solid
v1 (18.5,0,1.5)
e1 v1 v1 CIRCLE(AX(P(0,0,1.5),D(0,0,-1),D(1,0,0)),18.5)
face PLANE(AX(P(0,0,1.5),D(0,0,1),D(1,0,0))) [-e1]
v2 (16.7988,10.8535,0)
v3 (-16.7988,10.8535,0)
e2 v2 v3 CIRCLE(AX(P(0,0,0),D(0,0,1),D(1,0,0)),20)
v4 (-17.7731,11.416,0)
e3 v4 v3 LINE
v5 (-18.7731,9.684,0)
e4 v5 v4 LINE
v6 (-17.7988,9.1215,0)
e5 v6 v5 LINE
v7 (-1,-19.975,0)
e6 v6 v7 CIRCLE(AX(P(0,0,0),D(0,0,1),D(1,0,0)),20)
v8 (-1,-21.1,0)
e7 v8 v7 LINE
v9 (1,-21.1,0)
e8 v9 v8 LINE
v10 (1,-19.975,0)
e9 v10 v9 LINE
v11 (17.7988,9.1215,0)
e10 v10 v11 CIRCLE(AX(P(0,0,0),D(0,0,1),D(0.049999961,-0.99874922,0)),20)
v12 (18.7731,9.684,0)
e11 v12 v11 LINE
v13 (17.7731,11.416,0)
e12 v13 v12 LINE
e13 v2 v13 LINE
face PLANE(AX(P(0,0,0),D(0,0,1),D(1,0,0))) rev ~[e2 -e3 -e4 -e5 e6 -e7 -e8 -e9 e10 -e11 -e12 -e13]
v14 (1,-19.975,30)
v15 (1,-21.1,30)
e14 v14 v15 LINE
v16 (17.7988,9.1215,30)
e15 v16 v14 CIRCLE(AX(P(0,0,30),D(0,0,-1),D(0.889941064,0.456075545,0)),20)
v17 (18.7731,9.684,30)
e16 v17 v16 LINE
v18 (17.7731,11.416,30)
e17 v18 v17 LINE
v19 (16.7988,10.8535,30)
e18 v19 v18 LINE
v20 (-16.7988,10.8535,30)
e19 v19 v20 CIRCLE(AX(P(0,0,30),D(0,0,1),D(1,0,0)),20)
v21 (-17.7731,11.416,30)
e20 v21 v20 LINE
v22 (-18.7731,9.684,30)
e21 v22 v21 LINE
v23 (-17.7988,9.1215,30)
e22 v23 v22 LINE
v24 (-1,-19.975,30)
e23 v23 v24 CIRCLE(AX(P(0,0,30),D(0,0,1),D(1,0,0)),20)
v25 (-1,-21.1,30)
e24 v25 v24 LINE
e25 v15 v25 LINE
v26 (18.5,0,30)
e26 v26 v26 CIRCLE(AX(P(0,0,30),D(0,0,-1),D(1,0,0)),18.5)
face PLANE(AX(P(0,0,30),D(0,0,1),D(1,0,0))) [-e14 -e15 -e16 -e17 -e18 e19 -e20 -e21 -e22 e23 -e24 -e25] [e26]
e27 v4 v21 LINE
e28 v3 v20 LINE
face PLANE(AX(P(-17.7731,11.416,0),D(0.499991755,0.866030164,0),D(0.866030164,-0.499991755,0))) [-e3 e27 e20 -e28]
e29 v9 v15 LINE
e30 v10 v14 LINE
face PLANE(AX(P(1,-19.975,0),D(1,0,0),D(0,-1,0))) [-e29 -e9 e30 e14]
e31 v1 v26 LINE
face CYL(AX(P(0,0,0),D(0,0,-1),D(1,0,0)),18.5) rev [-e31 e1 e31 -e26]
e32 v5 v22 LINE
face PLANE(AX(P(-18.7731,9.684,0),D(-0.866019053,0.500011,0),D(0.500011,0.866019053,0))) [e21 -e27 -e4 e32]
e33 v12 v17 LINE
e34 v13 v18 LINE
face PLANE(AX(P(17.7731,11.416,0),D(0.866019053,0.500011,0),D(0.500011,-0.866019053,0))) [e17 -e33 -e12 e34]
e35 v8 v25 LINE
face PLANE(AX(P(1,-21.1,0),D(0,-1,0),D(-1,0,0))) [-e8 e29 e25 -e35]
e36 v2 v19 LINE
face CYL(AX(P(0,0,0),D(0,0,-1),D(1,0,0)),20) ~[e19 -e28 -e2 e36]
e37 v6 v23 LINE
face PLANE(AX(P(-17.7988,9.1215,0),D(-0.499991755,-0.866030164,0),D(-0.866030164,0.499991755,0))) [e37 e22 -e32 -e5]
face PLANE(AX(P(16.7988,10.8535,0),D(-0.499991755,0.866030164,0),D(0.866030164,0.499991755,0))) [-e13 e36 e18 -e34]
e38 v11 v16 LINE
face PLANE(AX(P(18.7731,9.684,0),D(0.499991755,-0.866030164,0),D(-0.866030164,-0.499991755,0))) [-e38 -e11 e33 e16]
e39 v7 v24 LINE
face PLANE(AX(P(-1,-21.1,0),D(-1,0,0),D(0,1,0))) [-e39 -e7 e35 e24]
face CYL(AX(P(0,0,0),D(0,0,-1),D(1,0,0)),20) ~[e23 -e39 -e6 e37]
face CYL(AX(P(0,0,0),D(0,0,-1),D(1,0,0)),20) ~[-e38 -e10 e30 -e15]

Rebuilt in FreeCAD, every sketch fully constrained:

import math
import FreeCAD as App
import Part
import Sketcher

V = App.Vector
Q = App.Units.Quantity


def faces_at(feature, points):
    """Names of the faces that lie closest to the given points."""
    faces = feature.Shape.Faces
    near = lambda p: min(range(len(faces)), key=lambda i: faces[i].distToShape(Part.Vertex(*p))[0])
    return sorted({f"Face{near(p) + 1}" for p in points})

doc = App.newDocument("Part")
body = doc.addObject("PartDesign::Body", "Body")

# Sketch on XY plane
sketch1 = doc.addObject("Sketcher::SketchObject", "Sketch")
body.addObject(sketch1)
sketch1.AttachmentSupport = (doc.XY_Plane, [""])
sketch1.MapMode = "FlatFace"
sketch1.addGeometry(Part.Circle(V(0, 0, 0), V(0, 0, 1), 20), False)
sketch1.addConstraint(Sketcher.Constraint("Coincident", 0, 3, -1, 1))
sketch1.addConstraint(Sketcher.Constraint("Diameter", 0, Q("40 mm")))
pad1 = doc.addObject("PartDesign::Pad", "Pad")
body.addObject(pad1)
pad1.Profile = sketch1
pad1.Length = 30
doc.recompute()

thickness = doc.addObject("PartDesign::Thickness", "Thickness")
body.addObject(thickness)
thickness.Base = (pad1, faces_at(pad1, [(-4.918, 4.377, 30)]))
thickness.Value = 1.5
thickness.Reversed = True
thickness.Join = "Intersection"

# Sketch on XY plane
sketch2 = doc.addObject("Sketcher::SketchObject", "Sketch001")
body.addObject(sketch2)
sketch2.AttachmentSupport = (doc.XY_Plane, [""])
sketch2.MapMode = "FlatFace"
sketch2.addGeometry(Part.ArcOfCircle(Part.Circle(V(0, 0, 0), V(0, 0, 1), 20), math.radians(27.13), math.radians(32.87)), False)
sketch2.addGeometry(Part.LineSegment(V(17.8, 9.1, 0), V(18.8, 9.7, 0)), False)
sketch2.addGeometry(Part.LineSegment(V(18.8, 9.7, 0), V(17.8, 11.4, 0)), False)
sketch2.addGeometry(Part.LineSegment(V(17.8, 11.4, 0), V(16.8, 10.9, 0)), False)
sketch2.addGeometry(Part.LineSegment(V(1, -21.1, 0), V(1, -20, 0)), False)
sketch2.addGeometry(Part.ArcOfCircle(Part.Circle(V(0, 0, 0), V(0, 0, 1), 20), math.radians(-92.87), math.radians(-87.13)), False)
sketch2.addGeometry(Part.LineSegment(V(-1, -20, 0), V(-1, -21.1, 0)), False)
sketch2.addGeometry(Part.LineSegment(V(-1, -21.1, 0), V(1, -21.1, 0)), False)
sketch2.addGeometry(Part.ArcOfCircle(Part.Circle(V(0, 0, 0), V(0, 0, 1), 20), math.radians(147.13), math.radians(152.87)), False)
sketch2.addGeometry(Part.LineSegment(V(-16.8, 10.9, 0), V(-17.8, 11.4, 0)), False)
sketch2.addGeometry(Part.LineSegment(V(-17.8, 11.4, 0), V(-18.8, 9.7, 0)), False)
sketch2.addGeometry(Part.LineSegment(V(-18.8, 9.7, 0), V(-17.8, 9.1, 0)), False)
sketch2.addConstraint(Sketcher.Constraint("Coincident", 0, 1, 1, 1))
sketch2.addConstraint(Sketcher.Constraint("Coincident", 1, 2, 2, 1))
sketch2.addConstraint(Sketcher.Constraint("Coincident", 2, 2, 3, 1))
sketch2.addConstraint(Sketcher.Constraint("Coincident", 3, 2, 0, 2))
sketch2.addConstraint(Sketcher.Constraint("Coincident", 4, 2, 5, 2))
sketch2.addConstraint(Sketcher.Constraint("Coincident", 5, 1, 6, 1))
sketch2.addConstraint(Sketcher.Constraint("Coincident", 6, 2, 7, 1))
sketch2.addConstraint(Sketcher.Constraint("Coincident", 7, 2, 4, 1))
sketch2.addConstraint(Sketcher.Constraint("Coincident", 8, 1, 9, 1))
sketch2.addConstraint(Sketcher.Constraint("Coincident", 9, 2, 10, 1))
sketch2.addConstraint(Sketcher.Constraint("Coincident", 10, 2, 11, 1))
sketch2.addConstraint(Sketcher.Constraint("Coincident", 11, 2, 8, 2))
sketch2.addConstraint(Sketcher.Constraint("Vertical", 4))
sketch2.addConstraint(Sketcher.Constraint("Vertical", 6))
sketch2.addConstraint(Sketcher.Constraint("Horizontal", 7))
sketch2.addConstraint(Sketcher.Constraint("Coincident", 0, 3, -1, 1))
sketch2.addConstraint(Sketcher.Constraint("Coincident", 5, 3, -1, 1))
sketch2.addConstraint(Sketcher.Constraint("Coincident", 8, 3, -1, 1))
sketch2.addConstraint(Sketcher.Constraint("Equal", 0, 5))
sketch2.addConstraint(Sketcher.Constraint("Equal", 5, 8))
sketch2.addConstraint(Sketcher.Constraint("Symmetric", 2, 2, 9, 2, -2))
sketch2.addConstraint(Sketcher.Constraint("Symmetric", 1, 2, 10, 2, -2))
sketch2.addConstraint(Sketcher.Constraint("Perpendicular", 1, 2))
sketch2.addConstraint(Sketcher.Constraint("Perpendicular", 2, 3))
sketch2.addConstraint(Sketcher.Constraint("Perpendicular", 9, 10))
sketch2.addConstraint(Sketcher.Constraint("Perpendicular", 10, 11))
sketch2.addConstraint(Sketcher.Constraint("Horizontal", 4, 2, 5, 1))
sketch2.addConstraint(Sketcher.Constraint("Equal", 1, 3))
sketch2.addConstraint(Sketcher.Constraint("Radius", 0, Q("20 mm")))
sketch2.addConstraint(Sketcher.Constraint("DistanceX", 7, 1, 7, 2, Q("2 mm")))
sketch2.addConstraint(Sketcher.Constraint("Distance", 2, Q("2 mm")))
sketch2.addConstraint(Sketcher.Constraint("Angle", 1, Q("29.9995 deg")))
sketch2.addConstraint(Sketcher.Constraint("DistanceY", 6, 2, -1, 1, Q("21.1 mm")))
sketch2.addConstraint(Sketcher.Constraint("Distance", 1, Q("1.125 mm")))
pad2 = doc.addObject("PartDesign::Pad", "Pad001")
body.addObject(pad2)
pad2.Profile = sketch2
pad2.Length = 30

doc.recompute()
